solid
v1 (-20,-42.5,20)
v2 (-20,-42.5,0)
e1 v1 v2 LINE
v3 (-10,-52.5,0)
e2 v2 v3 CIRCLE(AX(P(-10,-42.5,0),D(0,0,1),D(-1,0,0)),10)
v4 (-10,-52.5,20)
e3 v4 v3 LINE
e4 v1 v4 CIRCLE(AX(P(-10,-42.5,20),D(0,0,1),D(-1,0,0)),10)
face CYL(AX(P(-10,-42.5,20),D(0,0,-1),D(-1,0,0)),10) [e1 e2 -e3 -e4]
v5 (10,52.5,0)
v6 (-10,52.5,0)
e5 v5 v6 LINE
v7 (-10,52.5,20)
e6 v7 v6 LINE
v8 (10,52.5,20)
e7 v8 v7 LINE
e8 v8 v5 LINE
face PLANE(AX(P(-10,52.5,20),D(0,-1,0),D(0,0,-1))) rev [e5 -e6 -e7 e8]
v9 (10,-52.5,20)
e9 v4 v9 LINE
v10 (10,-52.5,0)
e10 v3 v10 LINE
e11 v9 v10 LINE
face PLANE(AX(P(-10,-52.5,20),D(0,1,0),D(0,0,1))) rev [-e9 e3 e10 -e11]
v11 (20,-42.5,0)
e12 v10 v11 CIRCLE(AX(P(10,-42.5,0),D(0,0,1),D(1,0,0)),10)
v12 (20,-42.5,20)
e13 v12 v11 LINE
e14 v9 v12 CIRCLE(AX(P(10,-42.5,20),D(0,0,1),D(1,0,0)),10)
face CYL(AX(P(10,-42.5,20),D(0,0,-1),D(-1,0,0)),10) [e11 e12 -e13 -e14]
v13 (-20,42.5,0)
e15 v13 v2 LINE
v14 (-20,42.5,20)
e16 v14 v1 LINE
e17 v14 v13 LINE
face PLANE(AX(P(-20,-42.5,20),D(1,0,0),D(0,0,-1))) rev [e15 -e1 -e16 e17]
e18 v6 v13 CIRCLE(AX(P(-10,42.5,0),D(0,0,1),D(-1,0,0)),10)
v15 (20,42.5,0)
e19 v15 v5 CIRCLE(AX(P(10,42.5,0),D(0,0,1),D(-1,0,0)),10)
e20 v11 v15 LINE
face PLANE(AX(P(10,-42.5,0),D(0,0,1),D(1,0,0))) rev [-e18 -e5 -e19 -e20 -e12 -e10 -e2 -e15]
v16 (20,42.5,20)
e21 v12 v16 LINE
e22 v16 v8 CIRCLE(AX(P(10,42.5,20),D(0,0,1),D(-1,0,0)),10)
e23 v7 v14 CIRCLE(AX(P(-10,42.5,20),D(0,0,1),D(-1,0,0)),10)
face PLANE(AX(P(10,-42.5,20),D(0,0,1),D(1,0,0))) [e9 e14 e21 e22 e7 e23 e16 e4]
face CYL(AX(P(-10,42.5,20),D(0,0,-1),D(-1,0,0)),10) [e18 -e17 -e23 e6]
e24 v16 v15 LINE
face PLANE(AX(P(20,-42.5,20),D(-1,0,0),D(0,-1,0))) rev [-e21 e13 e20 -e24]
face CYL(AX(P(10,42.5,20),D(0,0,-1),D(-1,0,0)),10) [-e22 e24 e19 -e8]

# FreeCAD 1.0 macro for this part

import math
import FreeCAD as App
import Part
import Sketcher
from FreeCAD import Vector
Q = App.Units.Quantity

doc = App.newDocument("Part")
body = doc.addObject("PartDesign::Body", "Body")

# Sketch on XY plane
sketch1 = body.newObject("Sketcher::SketchObject", "Sketch")
sketch1.AttachmentSupport = (doc.getObject("XY_Plane"), [""])
sketch1.MapMode = "FlatFace"
sketch1.addGeometry(Part.LineSegment(Vector(-10, -52, 0), Vector(10, -52, 0)), False)
sketch1.addGeometry(Part.ArcOfCircle(Part.Circle(Vector(10, -42, 0), Vector(0, 0, 1), 10), math.radians(-90), math.radians(0)), False)
sketch1.addGeometry(Part.LineSegment(Vector(20, -42, 0), Vector(20, 42, 0)), False)
sketch1.addGeometry(Part.ArcOfCircle(Part.Circle(Vector(10, 42, 0), Vector(0, 0, 1), 10), math.radians(0), math.radians(90)), False)
sketch1.addGeometry(Part.LineSegment(Vector(10, 52, 0), Vector(-10, 52, 0)), False)
sketch1.addGeometry(Part.ArcOfCircle(Part.Circle(Vector(-10, 42, 0), Vector(0, 0, 1), 10), math.radians(90), math.radians(180)), False)
sketch1.addGeometry(Part.LineSegment(Vector(-20, 42, 0), Vector(-20, -42, 0)), False)
sketch1.addGeometry(Part.ArcOfCircle(Part.Circle(Vector(-10, -42, 0), Vector(0, 0, 1), 10), math.radians(180), math.radians(270)), False)
sketch1.addConstraint(Sketcher.Constraint("Tangent", 0, 2, 1, 1))
sketch1.addConstraint(Sketcher.Constraint("Tangent", 1, 2, 2, 1))
sketch1.addConstraint(Sketcher.Constraint("Tangent", 2, 2, 3, 1))
sketch1.addConstraint(Sketcher.Constraint("Tangent", 3, 2, 4, 1))
sketch1.addConstraint(Sketcher.Constraint("Tangent", 4, 2, 5, 1))
sketch1.addConstraint(Sketcher.Constraint("Tangent", 5, 2, 6, 1))
sketch1.addConstraint(Sketcher.Constraint("Tangent", 6, 2, 7, 1))
sketch1.addConstraint(Sketcher.Constraint("Tangent", 7, 2, 0, 1))
sketch1.addConstraint(Sketcher.Constraint("Horizontal", 0))
sketch1.addConstraint(Sketcher.Constraint("Vertical", 2))
sketch1.addConstraint(Sketcher.Constraint("Horizontal", 4))
sketch1.addConstraint(Sketcher.Constraint("Vertical", 6))
sketch1.addConstraint(Sketcher.Constraint("Equal", 1, 3))
sketch1.addConstraint(Sketcher.Constraint("Equal", 3, 5))
sketch1.addConstraint(Sketcher.Constraint("Equal", 5, 7))
sketch1.addConstraint(Sketcher.Constraint("Symmetric", 1, 3, 5, 3, -1, 1))
sketch1.addConstraint(Sketcher.Constraint("Radius", 1, Q("10 mm")))
sketch1.addConstraint(Sketcher.Constraint("DistanceX", 0, 1, 0, 2, Q("20 mm")))
sketch1.addConstraint(Sketcher.Constraint("DistanceY", 2, 1, 2, 2, Q("85 mm")))
pad1 = body.newObject("PartDesign::Pad", "Pad")
pad1.Profile = sketch1
pad1.Length = 20

doc.recompute()
